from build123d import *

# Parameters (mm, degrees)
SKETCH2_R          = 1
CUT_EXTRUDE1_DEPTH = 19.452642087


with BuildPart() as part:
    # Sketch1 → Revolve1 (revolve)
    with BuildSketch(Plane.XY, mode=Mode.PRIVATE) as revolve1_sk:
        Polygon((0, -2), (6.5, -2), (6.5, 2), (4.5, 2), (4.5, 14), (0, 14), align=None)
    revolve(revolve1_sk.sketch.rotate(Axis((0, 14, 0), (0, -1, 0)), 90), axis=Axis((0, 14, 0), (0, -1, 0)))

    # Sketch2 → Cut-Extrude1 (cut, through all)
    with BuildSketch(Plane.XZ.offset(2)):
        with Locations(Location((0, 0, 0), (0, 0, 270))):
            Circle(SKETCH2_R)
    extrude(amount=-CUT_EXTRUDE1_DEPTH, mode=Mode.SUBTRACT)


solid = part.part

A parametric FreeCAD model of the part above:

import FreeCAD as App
import Part
import Sketcher
from FreeCAD import Vector
Q = App.Units.Quantity


def add_polygon(sketch, points):
    """Adds a closed chain of lines whose ends are joined by coincident constraints."""
    first, n = sketch.GeometryCount, len(points)
    for a, b in zip(points, points[1:] + points[:1]):
        sketch.addGeometry(Part.LineSegment(App.Vector(*a, 0), App.Vector(*b, 0)), False)
    for i in range(n):
        sketch.addConstraint(Sketcher.Constraint("Coincident", first + i, 2, first + (i + 1) % n, 1))

doc = App.newDocument("Part")
params = doc.addObject("Spreadsheet::Sheet", "Params")
for row, (alias, value) in enumerate([
    ("sketch1_width", "2 mm"),
    ("sketch1_height", "4 mm"),
    ("sketch1_height2", "12 mm"),
    ("sketch1_width2", "6.5 mm"),
    ("revolution_angle", "360 deg"),
    ("sketch2_diameter", "2 mm"),
], start=1):
    params.set(f"A{row}", alias)
    params.set(f"B{row}", "=" + value)
    params.setAlias(f"B{row}", alias)

body = doc.addObject("PartDesign::Body", "Body")

# Sketch on XY plane
sketch1 = body.newObject("Sketcher::SketchObject", "Sketch")
sketch1.AttachmentSupport = (doc.getObject("XY_Plane"), [""])
sketch1.MapMode = "FlatFace"
add_polygon(sketch1, [(0, -2), (6.5, -2), (6.5, 2), (4.5, 2), (4.5, 14), (0, 14)])  # lines 0-5
sketch1.addConstraint([
    Sketcher.Constraint("Horizontal", 0),
    Sketcher.Constraint("Vertical", 1),
    Sketcher.Constraint("Horizontal", 2),
    Sketcher.Constraint("Vertical", 3),
    Sketcher.Constraint("Horizontal", 4),
    Sketcher.Constraint("Vertical", 5),
    Sketcher.Constraint("PointOnObject", 4, 2, -2),
    Sketcher.Constraint("DistanceX", 2, 2, 2, 1, Q("2 mm")),
    Sketcher.Constraint("DistanceY", 1, 1, 1, 2, Q("4 mm")),
    Sketcher.Constraint("DistanceY", 3, 1, 3, 2, Q("12 mm")),
    Sketcher.Constraint("DistanceX", 0, 1, 0, 2, Q("6.5 mm")),
    Sketcher.Constraint("DistanceY", 0, 2, -1, 1, Q("2 mm")),
])
sketch1.setExpression("Constraints[13]", "Params.sketch1_width")
sketch1.setExpression("Constraints[14]", "Params.sketch1_height")
sketch1.setExpression("Constraints[15]", "Params.sketch1_height2")
sketch1.setExpression("Constraints[16]", "Params.sketch1_width2")
revolution = body.newObject("PartDesign::Revolution", "Revolution")
revolution.Profile = sketch1
revolution.ReferenceAxis = (sketch1, ["V_Axis"])
revolution.setExpression("Angle", "Params.revolution_angle")

# Sketch on XZ plane
sketch2 = body.newObject("Sketcher::SketchObject", "Sketch001")
sketch2.AttachmentSupport = (doc.getObject("XZ_Plane"), [""])
sketch2.MapMode = "FlatFace"
sketch2.AttachmentOffset = App.Placement(Vector(0, 0, 2), App.Rotation())
sketch2.addGeometry(Part.Circle(Vector(0, 0, 0), Vector(0, 0, 1), 1), False)
sketch2.addConstraint([
    Sketcher.Constraint("Coincident", 0, 3, -1, 1),
    Sketcher.Constraint("Diameter", 0, Q("2 mm")),
])
sketch2.setExpression("Constraints[1]", "Params.sketch2_diameter")
pocket1 = body.newObject("PartDesign::Pocket", "Pocket")
pocket1.Profile = sketch2
pocket1.Type = "ThroughAll"

doc.recompute()
